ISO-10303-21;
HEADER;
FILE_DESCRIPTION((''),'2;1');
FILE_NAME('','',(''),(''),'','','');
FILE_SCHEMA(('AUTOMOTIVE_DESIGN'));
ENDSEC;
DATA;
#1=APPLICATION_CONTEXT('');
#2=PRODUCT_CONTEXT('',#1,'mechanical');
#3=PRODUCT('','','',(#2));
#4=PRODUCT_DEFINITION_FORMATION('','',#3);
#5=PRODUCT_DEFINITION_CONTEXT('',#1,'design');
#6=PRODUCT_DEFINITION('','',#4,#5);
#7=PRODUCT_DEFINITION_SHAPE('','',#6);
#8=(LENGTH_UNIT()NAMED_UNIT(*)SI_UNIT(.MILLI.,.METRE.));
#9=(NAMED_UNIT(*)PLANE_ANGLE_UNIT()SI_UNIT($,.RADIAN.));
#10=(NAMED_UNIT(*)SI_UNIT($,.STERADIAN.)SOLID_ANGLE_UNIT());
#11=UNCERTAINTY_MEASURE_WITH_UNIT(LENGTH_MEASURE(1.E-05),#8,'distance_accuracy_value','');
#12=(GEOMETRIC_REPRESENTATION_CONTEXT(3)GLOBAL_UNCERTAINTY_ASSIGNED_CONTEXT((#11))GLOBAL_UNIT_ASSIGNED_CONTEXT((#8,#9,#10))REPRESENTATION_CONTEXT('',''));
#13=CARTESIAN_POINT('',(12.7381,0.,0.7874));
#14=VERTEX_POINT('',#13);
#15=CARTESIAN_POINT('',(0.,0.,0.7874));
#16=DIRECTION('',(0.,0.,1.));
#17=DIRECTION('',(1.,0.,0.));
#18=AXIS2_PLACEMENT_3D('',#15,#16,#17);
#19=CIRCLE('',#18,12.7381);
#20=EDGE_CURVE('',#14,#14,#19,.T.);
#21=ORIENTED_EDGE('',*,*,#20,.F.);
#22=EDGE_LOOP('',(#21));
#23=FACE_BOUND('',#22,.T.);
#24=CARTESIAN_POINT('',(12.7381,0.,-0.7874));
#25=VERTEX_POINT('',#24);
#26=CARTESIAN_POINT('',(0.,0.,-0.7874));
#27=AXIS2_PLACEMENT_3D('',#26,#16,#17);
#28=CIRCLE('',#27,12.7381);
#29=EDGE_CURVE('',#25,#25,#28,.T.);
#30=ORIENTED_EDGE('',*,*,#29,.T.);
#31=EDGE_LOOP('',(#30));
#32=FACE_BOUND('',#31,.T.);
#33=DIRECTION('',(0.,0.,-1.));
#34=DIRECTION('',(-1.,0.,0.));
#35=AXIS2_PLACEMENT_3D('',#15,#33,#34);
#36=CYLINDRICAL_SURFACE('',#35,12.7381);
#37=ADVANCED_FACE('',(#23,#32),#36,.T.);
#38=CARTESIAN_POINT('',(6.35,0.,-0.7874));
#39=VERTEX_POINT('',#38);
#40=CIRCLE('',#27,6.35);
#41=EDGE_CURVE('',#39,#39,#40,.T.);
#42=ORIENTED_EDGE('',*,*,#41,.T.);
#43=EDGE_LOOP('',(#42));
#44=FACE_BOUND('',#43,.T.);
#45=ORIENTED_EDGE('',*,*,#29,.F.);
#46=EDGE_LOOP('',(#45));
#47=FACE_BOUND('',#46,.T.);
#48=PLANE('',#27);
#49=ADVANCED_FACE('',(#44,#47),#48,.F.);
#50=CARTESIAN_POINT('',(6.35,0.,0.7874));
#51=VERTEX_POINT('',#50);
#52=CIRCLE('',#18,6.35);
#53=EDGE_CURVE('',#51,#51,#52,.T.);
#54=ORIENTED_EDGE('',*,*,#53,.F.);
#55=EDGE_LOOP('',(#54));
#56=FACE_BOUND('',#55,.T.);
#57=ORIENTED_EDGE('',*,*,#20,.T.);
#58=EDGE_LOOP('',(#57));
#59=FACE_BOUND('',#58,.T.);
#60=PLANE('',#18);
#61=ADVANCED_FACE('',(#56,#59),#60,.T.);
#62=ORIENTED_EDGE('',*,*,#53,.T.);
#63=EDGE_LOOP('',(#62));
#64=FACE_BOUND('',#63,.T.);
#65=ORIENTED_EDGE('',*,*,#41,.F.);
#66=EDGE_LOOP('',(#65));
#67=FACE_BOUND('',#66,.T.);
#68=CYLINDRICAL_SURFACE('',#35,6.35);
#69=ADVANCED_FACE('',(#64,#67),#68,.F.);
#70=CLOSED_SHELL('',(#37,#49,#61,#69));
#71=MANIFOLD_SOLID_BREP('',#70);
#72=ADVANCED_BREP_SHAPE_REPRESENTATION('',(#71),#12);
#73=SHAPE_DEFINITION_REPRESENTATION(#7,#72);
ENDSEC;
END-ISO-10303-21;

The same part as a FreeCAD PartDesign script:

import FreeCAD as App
import Part
import Sketcher
Q = App.Units.Quantity

doc = App.newDocument("Part")
body = doc.addObject("PartDesign::Body", "Body")

sketch1 = body.newObject("Sketcher::SketchObject", "Sketch")
sketch1.AttachmentSupport = (doc.getObject("XY_Plane"), [""])
sketch1.MapMode = "FlatFace"
sketch1.addGeometry([
    Part.Circle(App.Vector(0, 0, 0), App.Vector(0, 0, 1), 13),
    Part.Circle(App.Vector(0, 0, 0), App.Vector(0, 0, 1), 6),
], False)
sketch1.addConstraint([
    Sketcher.Constraint("Coincident", 0, 3, -1, 1),
    Sketcher.Constraint("Coincident", 1, 3, -1, 1),
    Sketcher.Constraint("Diameter", 1, Q("0.5 in")),
    Sketcher.Constraint("Diameter", 0, Q("1.003 in")),
])
pad1 = body.newObject("PartDesign::Pad", "Pad")
pad1.Profile = sketch1
pad1.Type = "TwoLengths"
pad1.Length = Q("0.031 in")
pad1.Length2 = Q("0.031 in")

doc.recompute()
